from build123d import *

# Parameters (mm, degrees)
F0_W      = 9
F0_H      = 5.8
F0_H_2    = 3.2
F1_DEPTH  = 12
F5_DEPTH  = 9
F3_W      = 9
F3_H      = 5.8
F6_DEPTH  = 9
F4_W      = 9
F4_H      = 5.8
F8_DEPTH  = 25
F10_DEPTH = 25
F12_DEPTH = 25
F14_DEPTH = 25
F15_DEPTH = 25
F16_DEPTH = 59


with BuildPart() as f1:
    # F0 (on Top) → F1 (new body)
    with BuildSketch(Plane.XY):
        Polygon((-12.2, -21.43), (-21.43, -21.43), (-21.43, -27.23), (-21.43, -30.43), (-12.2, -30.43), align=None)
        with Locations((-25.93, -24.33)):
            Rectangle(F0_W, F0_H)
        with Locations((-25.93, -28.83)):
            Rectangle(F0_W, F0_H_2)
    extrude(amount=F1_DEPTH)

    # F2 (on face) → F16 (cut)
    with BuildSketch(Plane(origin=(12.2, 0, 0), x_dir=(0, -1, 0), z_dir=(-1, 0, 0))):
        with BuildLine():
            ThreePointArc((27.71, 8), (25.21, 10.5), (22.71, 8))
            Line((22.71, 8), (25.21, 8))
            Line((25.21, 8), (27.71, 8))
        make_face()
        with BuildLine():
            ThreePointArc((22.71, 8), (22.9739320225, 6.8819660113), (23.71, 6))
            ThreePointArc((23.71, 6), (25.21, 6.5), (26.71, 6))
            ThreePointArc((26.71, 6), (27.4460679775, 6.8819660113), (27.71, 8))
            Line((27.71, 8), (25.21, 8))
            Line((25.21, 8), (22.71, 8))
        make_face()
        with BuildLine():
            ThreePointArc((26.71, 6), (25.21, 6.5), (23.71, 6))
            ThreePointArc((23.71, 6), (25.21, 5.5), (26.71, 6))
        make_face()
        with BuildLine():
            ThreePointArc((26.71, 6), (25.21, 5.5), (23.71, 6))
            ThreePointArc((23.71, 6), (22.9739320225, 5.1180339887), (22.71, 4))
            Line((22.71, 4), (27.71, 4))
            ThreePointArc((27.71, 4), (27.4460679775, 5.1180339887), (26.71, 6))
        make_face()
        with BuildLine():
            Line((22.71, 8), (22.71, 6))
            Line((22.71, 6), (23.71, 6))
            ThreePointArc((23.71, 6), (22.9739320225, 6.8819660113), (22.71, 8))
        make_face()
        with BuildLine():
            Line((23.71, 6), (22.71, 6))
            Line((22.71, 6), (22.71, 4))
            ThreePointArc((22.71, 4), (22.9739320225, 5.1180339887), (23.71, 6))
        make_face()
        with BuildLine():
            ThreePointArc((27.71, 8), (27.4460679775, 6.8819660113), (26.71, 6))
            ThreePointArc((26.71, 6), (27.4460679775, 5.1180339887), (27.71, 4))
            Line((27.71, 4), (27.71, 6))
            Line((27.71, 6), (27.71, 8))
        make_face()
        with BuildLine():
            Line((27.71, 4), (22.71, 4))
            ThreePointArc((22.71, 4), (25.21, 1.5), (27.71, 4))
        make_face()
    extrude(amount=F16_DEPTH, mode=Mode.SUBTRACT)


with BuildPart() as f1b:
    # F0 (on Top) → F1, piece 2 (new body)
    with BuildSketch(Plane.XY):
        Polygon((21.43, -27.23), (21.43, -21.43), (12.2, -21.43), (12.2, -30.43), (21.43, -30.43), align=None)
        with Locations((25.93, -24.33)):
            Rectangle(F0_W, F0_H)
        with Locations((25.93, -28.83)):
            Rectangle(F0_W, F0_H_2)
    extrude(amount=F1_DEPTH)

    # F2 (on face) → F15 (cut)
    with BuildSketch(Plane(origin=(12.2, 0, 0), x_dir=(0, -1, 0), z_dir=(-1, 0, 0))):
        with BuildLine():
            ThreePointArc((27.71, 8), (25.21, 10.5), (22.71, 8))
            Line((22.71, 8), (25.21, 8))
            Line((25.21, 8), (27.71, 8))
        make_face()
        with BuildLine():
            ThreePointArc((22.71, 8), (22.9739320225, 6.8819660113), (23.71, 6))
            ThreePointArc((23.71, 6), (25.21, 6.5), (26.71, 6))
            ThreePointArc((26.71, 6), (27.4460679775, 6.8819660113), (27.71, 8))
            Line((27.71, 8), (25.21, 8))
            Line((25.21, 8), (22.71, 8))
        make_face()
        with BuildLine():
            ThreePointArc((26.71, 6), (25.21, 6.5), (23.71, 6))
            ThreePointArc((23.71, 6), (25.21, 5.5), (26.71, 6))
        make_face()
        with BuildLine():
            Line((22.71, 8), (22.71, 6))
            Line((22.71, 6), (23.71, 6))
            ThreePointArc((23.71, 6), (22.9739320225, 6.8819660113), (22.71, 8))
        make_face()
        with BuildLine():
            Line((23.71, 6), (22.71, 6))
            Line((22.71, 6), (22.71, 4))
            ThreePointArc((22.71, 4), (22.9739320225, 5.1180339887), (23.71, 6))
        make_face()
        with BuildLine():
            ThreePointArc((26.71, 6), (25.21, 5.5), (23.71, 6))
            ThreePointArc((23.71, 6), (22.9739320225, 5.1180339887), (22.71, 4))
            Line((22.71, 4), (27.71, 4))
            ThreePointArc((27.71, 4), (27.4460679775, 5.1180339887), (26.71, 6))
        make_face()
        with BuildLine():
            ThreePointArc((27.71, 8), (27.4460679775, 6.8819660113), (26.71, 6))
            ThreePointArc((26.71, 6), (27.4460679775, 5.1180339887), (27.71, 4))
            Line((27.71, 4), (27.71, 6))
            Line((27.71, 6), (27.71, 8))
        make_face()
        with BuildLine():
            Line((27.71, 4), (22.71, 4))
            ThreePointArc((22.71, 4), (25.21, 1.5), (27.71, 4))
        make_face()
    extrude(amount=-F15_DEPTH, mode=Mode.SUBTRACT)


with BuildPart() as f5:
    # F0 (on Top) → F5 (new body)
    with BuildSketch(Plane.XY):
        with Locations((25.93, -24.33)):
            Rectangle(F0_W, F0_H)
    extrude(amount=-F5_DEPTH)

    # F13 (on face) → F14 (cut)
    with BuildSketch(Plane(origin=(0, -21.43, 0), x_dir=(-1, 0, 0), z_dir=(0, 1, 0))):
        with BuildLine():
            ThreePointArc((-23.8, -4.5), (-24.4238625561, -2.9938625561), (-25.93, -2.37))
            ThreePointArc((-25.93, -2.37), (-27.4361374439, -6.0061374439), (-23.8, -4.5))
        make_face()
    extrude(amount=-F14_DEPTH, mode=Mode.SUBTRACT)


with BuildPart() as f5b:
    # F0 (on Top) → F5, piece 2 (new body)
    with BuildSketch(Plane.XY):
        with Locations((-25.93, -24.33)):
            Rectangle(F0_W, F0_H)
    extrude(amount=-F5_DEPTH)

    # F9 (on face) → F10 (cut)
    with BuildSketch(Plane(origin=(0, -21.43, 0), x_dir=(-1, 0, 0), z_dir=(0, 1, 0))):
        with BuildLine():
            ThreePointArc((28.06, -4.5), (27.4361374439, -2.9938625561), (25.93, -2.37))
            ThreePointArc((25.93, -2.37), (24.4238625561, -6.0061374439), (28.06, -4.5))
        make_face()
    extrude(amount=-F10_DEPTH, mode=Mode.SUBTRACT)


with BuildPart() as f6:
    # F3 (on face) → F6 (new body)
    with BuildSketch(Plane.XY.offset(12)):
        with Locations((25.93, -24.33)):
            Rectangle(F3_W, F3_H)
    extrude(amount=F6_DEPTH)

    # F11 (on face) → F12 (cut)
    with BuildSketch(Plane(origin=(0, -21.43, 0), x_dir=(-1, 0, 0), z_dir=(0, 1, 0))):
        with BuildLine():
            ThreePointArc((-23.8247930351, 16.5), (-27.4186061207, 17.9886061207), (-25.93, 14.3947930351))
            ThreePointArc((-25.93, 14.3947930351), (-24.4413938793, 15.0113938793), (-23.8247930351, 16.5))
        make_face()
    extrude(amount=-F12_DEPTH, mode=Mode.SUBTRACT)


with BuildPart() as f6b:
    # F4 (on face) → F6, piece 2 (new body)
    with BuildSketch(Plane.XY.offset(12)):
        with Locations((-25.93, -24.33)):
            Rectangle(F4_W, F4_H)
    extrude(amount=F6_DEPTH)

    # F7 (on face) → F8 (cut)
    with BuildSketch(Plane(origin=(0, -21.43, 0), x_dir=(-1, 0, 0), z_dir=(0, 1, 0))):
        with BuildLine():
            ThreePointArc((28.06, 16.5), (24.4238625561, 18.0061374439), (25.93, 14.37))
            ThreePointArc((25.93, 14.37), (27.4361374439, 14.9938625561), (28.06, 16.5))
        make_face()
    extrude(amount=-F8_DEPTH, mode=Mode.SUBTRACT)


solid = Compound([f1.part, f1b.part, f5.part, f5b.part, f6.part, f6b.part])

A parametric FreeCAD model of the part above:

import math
import FreeCAD as App
import Part
import Sketcher
Q = App.Units.Quantity


def add_polygon(sketch, points):
    """Adds a closed chain of lines whose ends are joined by coincident constraints."""
    first, n = sketch.GeometryCount, len(points)
    for a, b in zip(points, points[1:] + points[:1]):
        sketch.addGeometry(Part.LineSegment(App.Vector(*a, 0), App.Vector(*b, 0)), False)
    for i in range(n):
        sketch.addConstraint(Sketcher.Constraint("Coincident", first + i, 2, first + (i + 1) % n, 1))

doc = App.newDocument("Part")
body = doc.addObject("PartDesign::Body", "Body")

# Sketch on XY plane
sketch1 = doc.addObject("Sketcher::SketchObject", "Sketch")
body.addObject(sketch1)
sketch1.AttachmentSupport = (doc.XY_Plane, [""])
sketch1.MapMode = "FlatFace"
add_polygon(sketch1, [(-12, -21), (-30, -21), (-30, -30), (-12, -30)])  # lines 0-3
sketch1.addConstraint([
    Sketcher.Constraint("Horizontal", 0),
    Sketcher.Constraint("Vertical", 1),
    Sketcher.Constraint("Horizontal", 2),
    Sketcher.Constraint("Vertical", 3),
    Sketcher.Constraint("DistanceY", 1, 2, 1, 1, Q("9 mm")),
    Sketcher.Constraint("DistanceX", 0, 2, 0, 1, Q("18.23 mm")),
    Sketcher.Constraint("DistanceX", 2, 2, -1, 1, Q("12.2 mm")),
    Sketcher.Constraint("DistanceY", 0, 2, -1, 1, Q("21.43 mm")),
])
pad1 = doc.addObject("PartDesign::Pad", "Pad")
body.addObject(pad1)
pad1.Profile = sketch1
pad1.Length = 12

# Sketch on YZ plane
sketch2 = doc.addObject("Sketcher::SketchObject", "Sketch001")
body.addObject(sketch2)
sketch2.AttachmentSupport = (doc.YZ_Plane, [""])
sketch2.MapMode = "FlatFace"
sketch2.AttachmentOffset = App.Placement(App.Vector(0, 0, 12.2), App.Rotation())
sketch2.addGeometry([
    Part.ArcOfCircle(Part.Circle(App.Vector(-25.2, 8, 0), App.Vector(0, 0, 1), 2.5), math.radians(0), math.radians(180)),
    Part.LineSegment(App.Vector(-22.7, 8, 0), App.Vector(-22.7, 4, 0)),
    Part.ArcOfCircle(Part.Circle(App.Vector(-25.2, 4, 0), App.Vector(0, 0, 1), 2.5), math.radians(180), math.radians(360)),
    Part.LineSegment(App.Vector(-27.7, 4, 0), App.Vector(-27.7, 8, 0)),
], False)
sketch2.addConstraint([
    Sketcher.Constraint("Tangent", 0, 1, 1, 1),
    Sketcher.Constraint("Tangent", 1, 2, 2, 2),
    Sketcher.Constraint("Tangent", 2, 1, 3, 1),
    Sketcher.Constraint("Tangent", 3, 2, 0, 2),
    Sketcher.Constraint("Vertical", 1),
    Sketcher.Constraint("Vertical", 3),
    Sketcher.Constraint("Radius", 0, Q("2.5 mm")),
    Sketcher.Constraint("DistanceY", 1, 2, 1, 1, Q("4 mm")),
    Sketcher.Constraint("DistanceY", -1, 1, 0, 3, Q("8 mm")),
    Sketcher.Constraint("DistanceX", 0, 3, -1, 1, Q("25.21 mm")),
])
pocket1 = doc.addObject("PartDesign::Pocket", "Pocket")
body.addObject(pocket1)
pocket1.Profile = sketch2
pocket1.Length = 59
body2 = doc.addObject("PartDesign::Body", "Body001")

# Sketch on XY plane
sketch3 = doc.addObject("Sketcher::SketchObject", "Sketch002")
body2.addObject(sketch3)
sketch3.AttachmentSupport = (doc.getObject("XY_Plane001"), [""])
sketch3.MapMode = "FlatFace"
add_polygon(sketch3, [(12, -21), (12, -30), (30, -30), (30, -21)])  # lines 0-3
sketch3.addConstraint([
    Sketcher.Constraint("Vertical", 0),
    Sketcher.Constraint("Horizontal", 1),
    Sketcher.Constraint("Vertical", 2),
    Sketcher.Constraint("Horizontal", 3),
    Sketcher.Constraint("DistanceY", 0, 2, 0, 1, Q("9 mm")),
    Sketcher.Constraint("DistanceX", 1, 1, 1, 2, Q("18.23 mm")),
    Sketcher.Constraint("DistanceX", -1, 1, 0, 2, Q("12.2 mm")),
    Sketcher.Constraint("DistanceY", 0, 2, -1, 1, Q("30.43 mm")),
])
pad2 = doc.addObject("PartDesign::Pad", "Pad001")
body2.addObject(pad2)
pad2.Profile = sketch3
pad2.Length = 12

# Sketch on YZ plane
sketch4 = doc.addObject("Sketcher::SketchObject", "Sketch003")
body2.addObject(sketch4)
sketch4.AttachmentSupport = (doc.getObject("YZ_Plane001"), [""])
sketch4.MapMode = "FlatFace"
sketch4.AttachmentOffset = App.Placement(App.Vector(0, 0, 12.2), App.Rotation())
sketch4.addGeometry([
    Part.ArcOfCircle(Part.Circle(App.Vector(-25.2, 8, 0), App.Vector(0, 0, 1), 2.5), math.radians(0), math.radians(180)),
    Part.LineSegment(App.Vector(-22.7, 8, 0), App.Vector(-22.7, 4, 0)),
    Part.ArcOfCircle(Part.Circle(App.Vector(-25.2, 4, 0), App.Vector(0, 0, 1), 2.5), math.radians(180), math.radians(360)),
    Part.LineSegment(App.Vector(-27.7, 4, 0), App.Vector(-27.7, 8, 0)),
], False)
sketch4.addConstraint([
    Sketcher.Constraint("Tangent", 0, 1, 1, 1),
    Sketcher.Constraint("Tangent", 1, 2, 2, 2),
    Sketcher.Constraint("Tangent", 2, 1, 3, 1),
    Sketcher.Constraint("Tangent", 3, 2, 0, 2),
    Sketcher.Constraint("Vertical", 1),
    Sketcher.Constraint("Vertical", 3),
    Sketcher.Constraint("Radius", 0, Q("2.5 mm")),
    Sketcher.Constraint("DistanceY", 1, 2, 1, 1, Q("4 mm")),
    Sketcher.Constraint("DistanceY", -1, 1, 0, 3, Q("8 mm")),
    Sketcher.Constraint("DistanceX", 0, 3, -1, 1, Q("25.21 mm")),
])
pocket2 = doc.addObject("PartDesign::Pocket", "Pocket001")
body2.addObject(pocket2)
pocket2.Profile = sketch4
pocket2.Length = 25
pocket2.Reversed = True
body3 = doc.addObject("PartDesign::Body", "Body002")

# Sketch on XY plane
sketch5 = doc.addObject("Sketcher::SketchObject", "Sketch004")
body3.addObject(sketch5)
sketch5.AttachmentSupport = (doc.getObject("XY_Plane002"), [""])
sketch5.MapMode = "FlatFace"
add_polygon(sketch5, [(21, -21), (21, -27), (30, -27), (30, -21)])  # lines 0-3
sketch5.addConstraint([
    Sketcher.Constraint("Vertical", 0),
    Sketcher.Constraint("Horizontal", 1),
    Sketcher.Constraint("Vertical", 2),
    Sketcher.Constraint("Horizontal", 3),
    Sketcher.Constraint("DistanceX", 1, 1, 1, 2, Q("9 mm")),
    Sketcher.Constraint("DistanceY", 0, 2, 0, 1, Q("5.8 mm")),
    Sketcher.Constraint("DistanceX", -1, 1, 0, 2, Q("21.43 mm")),
    Sketcher.Constraint("DistanceY", 0, 2, -1, 1, Q("27.23 mm")),
])
pad3 = doc.addObject("PartDesign::Pad", "Pad002")
body3.addObject(pad3)
pad3.Profile = sketch5
pad3.Length = 9
pad3.Reversed = True

# Sketch on XZ plane
sketch6 = doc.addObject("Sketcher::SketchObject", "Sketch005")
body3.addObject(sketch6)
sketch6.AttachmentSupport = (doc.getObject("XZ_Plane002"), [""])
sketch6.MapMode = "FlatFace"
sketch6.AttachmentOffset = App.Placement(App.Vector(0, 0, 21.43), App.Rotation())
sketch6.addGeometry([
    Part.ArcOfCircle(Part.Circle(App.Vector(25.9, -4.5, 0), App.Vector(0, 0, 1), 2.1), math.radians(90), math.radians(180)),
    Part.ArcOfCircle(Part.Circle(App.Vector(25.9, -4.5, 0), App.Vector(0, 0, 1), 2.1), math.radians(180), math.radians(450)),
], False)
sketch6.addConstraint([
    Sketcher.Constraint("Tangent", 0, 1, 1, 2),
    Sketcher.Constraint("Coincident", 1, 1, 0, 2),
    Sketcher.Constraint("Horizontal", 0, 3, 1, 1),
    Sketcher.Constraint("Vertical", 1, 3, 0, 1),
    Sketcher.Constraint("Radius", 0, Q("2.13 mm")),
    Sketcher.Constraint("DistanceY", 0, 3, -1, 1, Q("4.5 mm")),
    Sketcher.Constraint("DistanceX", -1, 1, 1, 1, Q("23.8 mm")),
])
pocket3 = doc.addObject("PartDesign::Pocket", "Pocket002")
body3.addObject(pocket3)
pocket3.Profile = sketch6
pocket3.Length = 25
pocket3.Reversed = True
body4 = doc.addObject("PartDesign::Body", "Body003")

# Sketch on XY plane
sketch7 = doc.addObject("Sketcher::SketchObject", "Sketch006")
body4.addObject(sketch7)
sketch7.AttachmentSupport = (doc.getObject("XY_Plane003"), [""])
sketch7.MapMode = "FlatFace"
add_polygon(sketch7, [(-30, -21), (-30, -27), (-21, -27), (-21, -21)])  # lines 0-3
sketch7.addConstraint([
    Sketcher.Constraint("Vertical", 0),
    Sketcher.Constraint("Horizontal", 1),
    Sketcher.Constraint("Vertical", 2),
    Sketcher.Constraint("Horizontal", 3),
    Sketcher.Constraint("DistanceX", 1, 1, 1, 2, Q("9 mm")),
    Sketcher.Constraint("DistanceY", 0, 2, 0, 1, Q("5.8 mm")),
    Sketcher.Constraint("DistanceX", 0, 2, -1, 1, Q("30.43 mm")),
    Sketcher.Constraint("DistanceY", 0, 2, -1, 1, Q("27.23 mm")),
])
pad4 = doc.addObject("PartDesign::Pad", "Pad003")
body4.addObject(pad4)
pad4.Profile = sketch7
pad4.Length = 9
pad4.Reversed = True

# Sketch on XZ plane
sketch8 = doc.addObject("Sketcher::SketchObject", "Sketch007")
body4.addObject(sketch8)
sketch8.AttachmentSupport = (doc.getObject("XZ_Plane003"), [""])
sketch8.MapMode = "FlatFace"
sketch8.AttachmentOffset = App.Placement(App.Vector(0, 0, 21.43), App.Rotation())
sketch8.addGeometry([
    Part.ArcOfCircle(Part.Circle(App.Vector(-25.9, -4.5, 0), App.Vector(0, 0, 1), 2.1), math.radians(90), math.radians(180)),
    Part.ArcOfCircle(Part.Circle(App.Vector(-25.9, -4.5, 0), App.Vector(0, 0, 1), 2.1), math.radians(180), math.radians(450)),
], False)
sketch8.addConstraint([
    Sketcher.Constraint("Tangent", 0, 1, 1, 2),
    Sketcher.Constraint("Coincident", 1, 1, 0, 2),
    Sketcher.Constraint("Horizontal", 0, 3, 1, 1),
    Sketcher.Constraint("Vertical", 1, 3, 0, 1),
    Sketcher.Constraint("Radius", 0, Q("2.13 mm")),
    Sketcher.Constraint("DistanceY", 0, 3, -1, 1, Q("4.5 mm")),
    Sketcher.Constraint("DistanceX", 0, 3, -1, 1, Q("25.93 mm")),
])
pocket4 = doc.addObject("PartDesign::Pocket", "Pocket003")
body4.addObject(pocket4)
pocket4.Profile = sketch8
pocket4.Length = 25
pocket4.Reversed = True
body5 = doc.addObject("PartDesign::Body", "Body004")

# Sketch on XY plane
sketch9 = doc.addObject("Sketcher::SketchObject", "Sketch008")
body5.addObject(sketch9)
sketch9.AttachmentSupport = (doc.getObject("XY_Plane004"), [""])
sketch9.MapMode = "FlatFace"
sketch9.AttachmentOffset = App.Placement(App.Vector(0, 0, 12), App.Rotation())
add_polygon(sketch9, [(21, -21), (21, -27), (30, -27), (30, -21)])  # lines 0-3
sketch9.addConstraint([
    Sketcher.Constraint("Vertical", 0),
    Sketcher.Constraint("Horizontal", 1),
    Sketcher.Constraint("Vertical", 2),
    Sketcher.Constraint("Horizontal", 3),
    Sketcher.Constraint("DistanceX", 1, 1, 1, 2, Q("9 mm")),
    Sketcher.Constraint("DistanceY", 0, 2, 0, 1, Q("5.8 mm")),
    Sketcher.Constraint("DistanceX", -1, 1, 0, 2, Q("21.43 mm")),
    Sketcher.Constraint("DistanceY", 0, 2, -1, 1, Q("27.23 mm")),
])
pad5 = doc.addObject("PartDesign::Pad", "Pad004")
body5.addObject(pad5)
pad5.Profile = sketch9
pad5.Length = 9

# Sketch on XZ plane
sketch10 = doc.addObject("Sketcher::SketchObject", "Sketch009")
body5.addObject(sketch10)
sketch10.AttachmentSupport = (doc.getObject("XZ_Plane004"), [""])
sketch10.MapMode = "FlatFace"
sketch10.AttachmentOffset = App.Placement(App.Vector(0, 0, 21.43), App.Rotation())
sketch10.addGeometry([
    Part.ArcOfCircle(Part.Circle(App.Vector(25.9, 16.5, 0), App.Vector(0, 0, 1), 2.1), math.radians(-90), math.radians(180)),
    Part.ArcOfCircle(Part.Circle(App.Vector(25.9, 16.5, 0), App.Vector(0, 0, 1), 2.1), math.radians(180), math.radians(270)),
], False)
sketch10.addConstraint([
    Sketcher.Constraint("Tangent", 0, 1, 1, 2),
    Sketcher.Constraint("Coincident", 1, 1, 0, 2),
    Sketcher.Constraint("Horizontal", 0, 3, 1, 1),
    Sketcher.Constraint("Vertical", 1, 3, 0, 1),
    Sketcher.Constraint("DistanceY", -1, 1, 0, 3, Q("16.5 mm")),
    Sketcher.Constraint("DistanceX", -1, 1, 0, 3, Q("25.93 mm")),
    Sketcher.Constraint("Radius", 0, Q("2.105207 mm")),
])
pocket5 = doc.addObject("PartDesign::Pocket", "Pocket004")
body5.addObject(pocket5)
pocket5.Profile = sketch10
pocket5.Length = 25
pocket5.Reversed = True
body6 = doc.addObject("PartDesign::Body", "Body005")

# Sketch on XY plane
sketch11 = doc.addObject("Sketcher::SketchObject", "Sketch010")
body6.addObject(sketch11)
sketch11.AttachmentSupport = (doc.getObject("XY_Plane005"), [""])
sketch11.MapMode = "FlatFace"
sketch11.AttachmentOffset = App.Placement(App.Vector(0, 0, 12), App.Rotation())
add_polygon(sketch11, [(-30, -21), (-30, -27), (-21, -27), (-21, -21)])  # lines 0-3
sketch11.addConstraint([
    Sketcher.Constraint("Vertical", 0),
    Sketcher.Constraint("Horizontal", 1),
    Sketcher.Constraint("Vertical", 2),
    Sketcher.Constraint("Horizontal", 3),
    Sketcher.Constraint("DistanceX", 1, 1, 1, 2, Q("9 mm")),
    Sketcher.Constraint("DistanceY", 0, 2, 0, 1, Q("5.8 mm")),
    Sketcher.Constraint("DistanceX", 0, 2, -1, 1, Q("30.43 mm")),
    Sketcher.Constraint("DistanceY", 0, 2, -1, 1, Q("27.23 mm")),
])
pad6 = doc.addObject("PartDesign::Pad", "Pad005")
body6.addObject(pad6)
pad6.Profile = sketch11
pad6.Length = 9

# Sketch on XZ plane
sketch12 = doc.addObject("Sketcher::SketchObject", "Sketch011")
body6.addObject(sketch12)
sketch12.AttachmentSupport = (doc.getObject("XZ_Plane005"), [""])
sketch12.MapMode = "FlatFace"
sketch12.AttachmentOffset = App.Placement(App.Vector(0, 0, 21.43), App.Rotation())
sketch12.addGeometry([
    Part.ArcOfCircle(Part.Circle(App.Vector(-25.9, 16.5, 0), App.Vector(0, 0, 1), 2.1), math.radians(-90), math.radians(180)),
    Part.ArcOfCircle(Part.Circle(App.Vector(-25.9, 16.5, 0), App.Vector(0, 0, 1), 2.1), math.radians(180), math.radians(270)),
], False)
sketch12.addConstraint([
    Sketcher.Constraint("Tangent", 0, 1, 1, 2),
    Sketcher.Constraint("Coincident", 1, 1, 0, 2),
    Sketcher.Constraint("Horizontal", 0, 3, 1, 1),
    Sketcher.Constraint("Vertical", 1, 3, 0, 1),
    Sketcher.Constraint("Radius", 0, Q("2.13 mm")),
    Sketcher.Constraint("DistanceY", -1, 1, 0, 3, Q("16.5 mm")),
    Sketcher.Constraint("DistanceX", 0, 3, -1, 1, Q("25.93 mm")),
])
pocket6 = doc.addObject("PartDesign::Pocket", "Pocket005")
body6.addObject(pocket6)
pocket6.Profile = sketch12
pocket6.Length = 25
pocket6.Reversed = True

doc.recompute()
